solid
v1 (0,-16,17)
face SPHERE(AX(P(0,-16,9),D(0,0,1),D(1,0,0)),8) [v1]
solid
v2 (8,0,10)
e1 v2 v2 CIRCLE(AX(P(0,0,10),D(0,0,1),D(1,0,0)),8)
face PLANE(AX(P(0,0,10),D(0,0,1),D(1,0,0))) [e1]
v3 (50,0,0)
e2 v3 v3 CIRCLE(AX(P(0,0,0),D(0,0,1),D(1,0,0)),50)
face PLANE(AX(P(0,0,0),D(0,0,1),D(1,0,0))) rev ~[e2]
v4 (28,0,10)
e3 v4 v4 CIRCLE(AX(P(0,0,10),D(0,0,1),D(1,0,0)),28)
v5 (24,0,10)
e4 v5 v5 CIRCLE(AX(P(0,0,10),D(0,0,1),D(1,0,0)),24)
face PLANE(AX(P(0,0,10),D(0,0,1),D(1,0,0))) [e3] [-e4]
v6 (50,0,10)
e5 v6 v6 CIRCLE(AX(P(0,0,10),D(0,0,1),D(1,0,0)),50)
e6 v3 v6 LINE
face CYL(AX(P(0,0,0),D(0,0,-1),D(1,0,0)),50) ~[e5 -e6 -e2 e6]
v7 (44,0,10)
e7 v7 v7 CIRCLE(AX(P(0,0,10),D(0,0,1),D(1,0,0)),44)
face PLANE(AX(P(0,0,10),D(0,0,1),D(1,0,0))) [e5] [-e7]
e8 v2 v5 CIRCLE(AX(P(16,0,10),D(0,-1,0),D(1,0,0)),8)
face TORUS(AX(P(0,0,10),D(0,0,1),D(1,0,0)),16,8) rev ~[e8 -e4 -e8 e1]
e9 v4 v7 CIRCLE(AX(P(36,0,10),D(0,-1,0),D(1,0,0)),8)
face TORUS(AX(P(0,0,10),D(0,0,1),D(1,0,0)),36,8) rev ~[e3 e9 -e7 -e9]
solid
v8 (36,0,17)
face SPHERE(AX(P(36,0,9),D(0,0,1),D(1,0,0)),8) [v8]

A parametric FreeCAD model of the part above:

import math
import FreeCAD as App
import Part
import Sketcher
Q = App.Units.Quantity

doc = App.newDocument("Part")
body = doc.addObject("PartDesign::Body", "Body")

# Sketch on XZ plane
sketch1 = body.newObject("Sketcher::SketchObject", "Sketch")
sketch1.AttachmentSupport = (doc.getObject("XZ_Plane"), [""])
sketch1.MapMode = "FlatFace"
sketch1.addGeometry(Part.Circle(App.Vector(36, 10, 0), App.Vector(0, 0, 1), 8), False)
sketch1.addConstraint([
    Sketcher.Constraint("Diameter", 0, Q("16 mm")),
    Sketcher.Constraint("DistanceX", -1, 1, 0, 3, Q("36 mm")),
    Sketcher.Constraint("DistanceY", -1, 1, 0, 3, Q("10 mm")),
])
revolution = body.newObject("PartDesign::Revolution", "Revolution")
revolution.Profile = sketch1
revolution.ReferenceAxis = (sketch1, ["V_Axis"])
revolution.Angle = 360
body2 = doc.addObject("PartDesign::Body", "Body001")
body2.AllowCompound = True

# Sketch on XZ plane
sketch2 = body2.newObject("Sketcher::SketchObject", "Sketch001")
sketch2.AttachmentSupport = (doc.getObject("XZ_Plane001"), [""])
sketch2.MapMode = "FlatFace"
sketch2.addGeometry(Part.Circle(App.Vector(16, 10, 0), App.Vector(0, 0, 1), 8), False)
sketch2.addConstraint([
    Sketcher.Constraint("Diameter", 0, Q("16 mm")),
    Sketcher.Constraint("DistanceX", -1, 1, 0, 3, Q("16 mm")),
    Sketcher.Constraint("DistanceY", -1, 1, 0, 3, Q("10 mm")),
])
revolution2 = body2.newObject("PartDesign::Revolution", "Revolution001")
revolution2.Profile = sketch2
revolution2.ReferenceAxis = (sketch2, ["V_Axis"])
revolution2.Angle = 360
doc.recompute()

boolean = body2.newObject("PartDesign::Boolean", "Boolean")
boolean.Type = "Fuse"
boolean.addObjects([body])
body3 = doc.addObject("PartDesign::Body", "Body002")

# Sketch on XY plane
sketch3 = body3.newObject("Sketcher::SketchObject", "Sketch002")
sketch3.AttachmentSupport = (doc.getObject("XY_Plane002"), [""])
sketch3.MapMode = "FlatFace"
sketch3.addGeometry(Part.Circle(App.Vector(0, 0, 0), App.Vector(0, 0, 1), 50), False)
sketch3.addConstraint([
    Sketcher.Constraint("Coincident", 0, 3, -1, 1),
    Sketcher.Constraint("Diameter", 0, Q("100 mm")),
])
pad1 = body3.newObject("PartDesign::Pad", "Pad")
pad1.Profile = sketch3
pad1.Length = 10
doc.recompute()

boolean2 = body3.newObject("PartDesign::Boolean", "Boolean001")
boolean2.Type = "Cut"
boolean2.addObjects([body2])
body4 = doc.addObject("PartDesign::Body", "Body003")

# Sketch on XZ plane
sketch4 = body4.newObject("Sketcher::SketchObject", "Sketch003")
sketch4.AttachmentSupport = (doc.getObject("XZ_Plane003"), [""])
sketch4.MapMode = "FlatFace"
sketch4.addGeometry([
    Part.ArcOfCircle(Part.Circle(App.Vector(36, 9, 0), App.Vector(0, 0, 1), 8), math.radians(-90), math.radians(90)),
    Part.LineSegment(App.Vector(36, 17, 0), App.Vector(36, 1, 0)),
], False)
sketch4.addGeometry(Part.LineSegment(App.Vector(36, 1, 0), App.Vector(36, 17, 0)), True)  # axis
sketch4.addConstraint([
    Sketcher.Constraint("Coincident", 0, 1, 1, 2),
    Sketcher.Constraint("Coincident", 1, 1, 0, 2),
    Sketcher.Constraint("Vertical", 1),
    Sketcher.Constraint("Vertical", 2),
    Sketcher.Constraint("Coincident", 2, 1, 0, 1),
    Sketcher.Constraint("Equal", 1, 2),
    Sketcher.Constraint("Radius", 0, Q("8 mm")),
    Sketcher.Constraint("DistanceX", -1, 1, 0, 3, Q("36 mm")),
    Sketcher.Constraint("DistanceY", -1, 1, 0, 3, Q("9 mm")),
    Sketcher.Constraint("DistanceX", -1, 1, 0, 1, Q("36 mm")),
])
revolution3 = body4.newObject("PartDesign::Revolution", "Revolution002")
revolution3.Profile = sketch4
revolution3.ReferenceAxis = (sketch4, ["Axis0"])
revolution3.Angle = 360
body5 = doc.addObject("PartDesign::Body", "Body004")

# Sketch on XZ plane
sketch5 = body5.newObject("Sketcher::SketchObject", "Sketch004")
sketch5.AttachmentSupport = (doc.getObject("XZ_Plane004"), [""])
sketch5.MapMode = "FlatFace"
sketch5.AttachmentOffset = App.Placement(App.Vector(0, 0, 16), App.Rotation())
sketch5.addGeometry([
    Part.ArcOfCircle(Part.Circle(App.Vector(0, 9, 0), App.Vector(0, 0, 1), 8), math.radians(-90), math.radians(90)),
    Part.LineSegment(App.Vector(0, 17, 0), App.Vector(0, 1, 0)),
], False)
sketch5.addConstraint([
    Sketcher.Constraint("Coincident", 0, 1, 1, 2),
    Sketcher.Constraint("Coincident", 1, 1, 0, 2),
    Sketcher.Constraint("Vertical", 1),
    Sketcher.Constraint("PointOnObject", 0, 3, -2),
    Sketcher.Constraint("PointOnObject", 0, 1, -2),
    Sketcher.Constraint("Radius", 0, Q("8 mm")),
    Sketcher.Constraint("DistanceY", -1, 1, 0, 3, Q("9 mm")),
])
revolution4 = body5.newObject("PartDesign::Revolution", "Revolution003")
revolution4.Profile = sketch5
revolution4.ReferenceAxis = (sketch5, ["V_Axis"])
revolution4.Angle = 360

doc.recompute()
